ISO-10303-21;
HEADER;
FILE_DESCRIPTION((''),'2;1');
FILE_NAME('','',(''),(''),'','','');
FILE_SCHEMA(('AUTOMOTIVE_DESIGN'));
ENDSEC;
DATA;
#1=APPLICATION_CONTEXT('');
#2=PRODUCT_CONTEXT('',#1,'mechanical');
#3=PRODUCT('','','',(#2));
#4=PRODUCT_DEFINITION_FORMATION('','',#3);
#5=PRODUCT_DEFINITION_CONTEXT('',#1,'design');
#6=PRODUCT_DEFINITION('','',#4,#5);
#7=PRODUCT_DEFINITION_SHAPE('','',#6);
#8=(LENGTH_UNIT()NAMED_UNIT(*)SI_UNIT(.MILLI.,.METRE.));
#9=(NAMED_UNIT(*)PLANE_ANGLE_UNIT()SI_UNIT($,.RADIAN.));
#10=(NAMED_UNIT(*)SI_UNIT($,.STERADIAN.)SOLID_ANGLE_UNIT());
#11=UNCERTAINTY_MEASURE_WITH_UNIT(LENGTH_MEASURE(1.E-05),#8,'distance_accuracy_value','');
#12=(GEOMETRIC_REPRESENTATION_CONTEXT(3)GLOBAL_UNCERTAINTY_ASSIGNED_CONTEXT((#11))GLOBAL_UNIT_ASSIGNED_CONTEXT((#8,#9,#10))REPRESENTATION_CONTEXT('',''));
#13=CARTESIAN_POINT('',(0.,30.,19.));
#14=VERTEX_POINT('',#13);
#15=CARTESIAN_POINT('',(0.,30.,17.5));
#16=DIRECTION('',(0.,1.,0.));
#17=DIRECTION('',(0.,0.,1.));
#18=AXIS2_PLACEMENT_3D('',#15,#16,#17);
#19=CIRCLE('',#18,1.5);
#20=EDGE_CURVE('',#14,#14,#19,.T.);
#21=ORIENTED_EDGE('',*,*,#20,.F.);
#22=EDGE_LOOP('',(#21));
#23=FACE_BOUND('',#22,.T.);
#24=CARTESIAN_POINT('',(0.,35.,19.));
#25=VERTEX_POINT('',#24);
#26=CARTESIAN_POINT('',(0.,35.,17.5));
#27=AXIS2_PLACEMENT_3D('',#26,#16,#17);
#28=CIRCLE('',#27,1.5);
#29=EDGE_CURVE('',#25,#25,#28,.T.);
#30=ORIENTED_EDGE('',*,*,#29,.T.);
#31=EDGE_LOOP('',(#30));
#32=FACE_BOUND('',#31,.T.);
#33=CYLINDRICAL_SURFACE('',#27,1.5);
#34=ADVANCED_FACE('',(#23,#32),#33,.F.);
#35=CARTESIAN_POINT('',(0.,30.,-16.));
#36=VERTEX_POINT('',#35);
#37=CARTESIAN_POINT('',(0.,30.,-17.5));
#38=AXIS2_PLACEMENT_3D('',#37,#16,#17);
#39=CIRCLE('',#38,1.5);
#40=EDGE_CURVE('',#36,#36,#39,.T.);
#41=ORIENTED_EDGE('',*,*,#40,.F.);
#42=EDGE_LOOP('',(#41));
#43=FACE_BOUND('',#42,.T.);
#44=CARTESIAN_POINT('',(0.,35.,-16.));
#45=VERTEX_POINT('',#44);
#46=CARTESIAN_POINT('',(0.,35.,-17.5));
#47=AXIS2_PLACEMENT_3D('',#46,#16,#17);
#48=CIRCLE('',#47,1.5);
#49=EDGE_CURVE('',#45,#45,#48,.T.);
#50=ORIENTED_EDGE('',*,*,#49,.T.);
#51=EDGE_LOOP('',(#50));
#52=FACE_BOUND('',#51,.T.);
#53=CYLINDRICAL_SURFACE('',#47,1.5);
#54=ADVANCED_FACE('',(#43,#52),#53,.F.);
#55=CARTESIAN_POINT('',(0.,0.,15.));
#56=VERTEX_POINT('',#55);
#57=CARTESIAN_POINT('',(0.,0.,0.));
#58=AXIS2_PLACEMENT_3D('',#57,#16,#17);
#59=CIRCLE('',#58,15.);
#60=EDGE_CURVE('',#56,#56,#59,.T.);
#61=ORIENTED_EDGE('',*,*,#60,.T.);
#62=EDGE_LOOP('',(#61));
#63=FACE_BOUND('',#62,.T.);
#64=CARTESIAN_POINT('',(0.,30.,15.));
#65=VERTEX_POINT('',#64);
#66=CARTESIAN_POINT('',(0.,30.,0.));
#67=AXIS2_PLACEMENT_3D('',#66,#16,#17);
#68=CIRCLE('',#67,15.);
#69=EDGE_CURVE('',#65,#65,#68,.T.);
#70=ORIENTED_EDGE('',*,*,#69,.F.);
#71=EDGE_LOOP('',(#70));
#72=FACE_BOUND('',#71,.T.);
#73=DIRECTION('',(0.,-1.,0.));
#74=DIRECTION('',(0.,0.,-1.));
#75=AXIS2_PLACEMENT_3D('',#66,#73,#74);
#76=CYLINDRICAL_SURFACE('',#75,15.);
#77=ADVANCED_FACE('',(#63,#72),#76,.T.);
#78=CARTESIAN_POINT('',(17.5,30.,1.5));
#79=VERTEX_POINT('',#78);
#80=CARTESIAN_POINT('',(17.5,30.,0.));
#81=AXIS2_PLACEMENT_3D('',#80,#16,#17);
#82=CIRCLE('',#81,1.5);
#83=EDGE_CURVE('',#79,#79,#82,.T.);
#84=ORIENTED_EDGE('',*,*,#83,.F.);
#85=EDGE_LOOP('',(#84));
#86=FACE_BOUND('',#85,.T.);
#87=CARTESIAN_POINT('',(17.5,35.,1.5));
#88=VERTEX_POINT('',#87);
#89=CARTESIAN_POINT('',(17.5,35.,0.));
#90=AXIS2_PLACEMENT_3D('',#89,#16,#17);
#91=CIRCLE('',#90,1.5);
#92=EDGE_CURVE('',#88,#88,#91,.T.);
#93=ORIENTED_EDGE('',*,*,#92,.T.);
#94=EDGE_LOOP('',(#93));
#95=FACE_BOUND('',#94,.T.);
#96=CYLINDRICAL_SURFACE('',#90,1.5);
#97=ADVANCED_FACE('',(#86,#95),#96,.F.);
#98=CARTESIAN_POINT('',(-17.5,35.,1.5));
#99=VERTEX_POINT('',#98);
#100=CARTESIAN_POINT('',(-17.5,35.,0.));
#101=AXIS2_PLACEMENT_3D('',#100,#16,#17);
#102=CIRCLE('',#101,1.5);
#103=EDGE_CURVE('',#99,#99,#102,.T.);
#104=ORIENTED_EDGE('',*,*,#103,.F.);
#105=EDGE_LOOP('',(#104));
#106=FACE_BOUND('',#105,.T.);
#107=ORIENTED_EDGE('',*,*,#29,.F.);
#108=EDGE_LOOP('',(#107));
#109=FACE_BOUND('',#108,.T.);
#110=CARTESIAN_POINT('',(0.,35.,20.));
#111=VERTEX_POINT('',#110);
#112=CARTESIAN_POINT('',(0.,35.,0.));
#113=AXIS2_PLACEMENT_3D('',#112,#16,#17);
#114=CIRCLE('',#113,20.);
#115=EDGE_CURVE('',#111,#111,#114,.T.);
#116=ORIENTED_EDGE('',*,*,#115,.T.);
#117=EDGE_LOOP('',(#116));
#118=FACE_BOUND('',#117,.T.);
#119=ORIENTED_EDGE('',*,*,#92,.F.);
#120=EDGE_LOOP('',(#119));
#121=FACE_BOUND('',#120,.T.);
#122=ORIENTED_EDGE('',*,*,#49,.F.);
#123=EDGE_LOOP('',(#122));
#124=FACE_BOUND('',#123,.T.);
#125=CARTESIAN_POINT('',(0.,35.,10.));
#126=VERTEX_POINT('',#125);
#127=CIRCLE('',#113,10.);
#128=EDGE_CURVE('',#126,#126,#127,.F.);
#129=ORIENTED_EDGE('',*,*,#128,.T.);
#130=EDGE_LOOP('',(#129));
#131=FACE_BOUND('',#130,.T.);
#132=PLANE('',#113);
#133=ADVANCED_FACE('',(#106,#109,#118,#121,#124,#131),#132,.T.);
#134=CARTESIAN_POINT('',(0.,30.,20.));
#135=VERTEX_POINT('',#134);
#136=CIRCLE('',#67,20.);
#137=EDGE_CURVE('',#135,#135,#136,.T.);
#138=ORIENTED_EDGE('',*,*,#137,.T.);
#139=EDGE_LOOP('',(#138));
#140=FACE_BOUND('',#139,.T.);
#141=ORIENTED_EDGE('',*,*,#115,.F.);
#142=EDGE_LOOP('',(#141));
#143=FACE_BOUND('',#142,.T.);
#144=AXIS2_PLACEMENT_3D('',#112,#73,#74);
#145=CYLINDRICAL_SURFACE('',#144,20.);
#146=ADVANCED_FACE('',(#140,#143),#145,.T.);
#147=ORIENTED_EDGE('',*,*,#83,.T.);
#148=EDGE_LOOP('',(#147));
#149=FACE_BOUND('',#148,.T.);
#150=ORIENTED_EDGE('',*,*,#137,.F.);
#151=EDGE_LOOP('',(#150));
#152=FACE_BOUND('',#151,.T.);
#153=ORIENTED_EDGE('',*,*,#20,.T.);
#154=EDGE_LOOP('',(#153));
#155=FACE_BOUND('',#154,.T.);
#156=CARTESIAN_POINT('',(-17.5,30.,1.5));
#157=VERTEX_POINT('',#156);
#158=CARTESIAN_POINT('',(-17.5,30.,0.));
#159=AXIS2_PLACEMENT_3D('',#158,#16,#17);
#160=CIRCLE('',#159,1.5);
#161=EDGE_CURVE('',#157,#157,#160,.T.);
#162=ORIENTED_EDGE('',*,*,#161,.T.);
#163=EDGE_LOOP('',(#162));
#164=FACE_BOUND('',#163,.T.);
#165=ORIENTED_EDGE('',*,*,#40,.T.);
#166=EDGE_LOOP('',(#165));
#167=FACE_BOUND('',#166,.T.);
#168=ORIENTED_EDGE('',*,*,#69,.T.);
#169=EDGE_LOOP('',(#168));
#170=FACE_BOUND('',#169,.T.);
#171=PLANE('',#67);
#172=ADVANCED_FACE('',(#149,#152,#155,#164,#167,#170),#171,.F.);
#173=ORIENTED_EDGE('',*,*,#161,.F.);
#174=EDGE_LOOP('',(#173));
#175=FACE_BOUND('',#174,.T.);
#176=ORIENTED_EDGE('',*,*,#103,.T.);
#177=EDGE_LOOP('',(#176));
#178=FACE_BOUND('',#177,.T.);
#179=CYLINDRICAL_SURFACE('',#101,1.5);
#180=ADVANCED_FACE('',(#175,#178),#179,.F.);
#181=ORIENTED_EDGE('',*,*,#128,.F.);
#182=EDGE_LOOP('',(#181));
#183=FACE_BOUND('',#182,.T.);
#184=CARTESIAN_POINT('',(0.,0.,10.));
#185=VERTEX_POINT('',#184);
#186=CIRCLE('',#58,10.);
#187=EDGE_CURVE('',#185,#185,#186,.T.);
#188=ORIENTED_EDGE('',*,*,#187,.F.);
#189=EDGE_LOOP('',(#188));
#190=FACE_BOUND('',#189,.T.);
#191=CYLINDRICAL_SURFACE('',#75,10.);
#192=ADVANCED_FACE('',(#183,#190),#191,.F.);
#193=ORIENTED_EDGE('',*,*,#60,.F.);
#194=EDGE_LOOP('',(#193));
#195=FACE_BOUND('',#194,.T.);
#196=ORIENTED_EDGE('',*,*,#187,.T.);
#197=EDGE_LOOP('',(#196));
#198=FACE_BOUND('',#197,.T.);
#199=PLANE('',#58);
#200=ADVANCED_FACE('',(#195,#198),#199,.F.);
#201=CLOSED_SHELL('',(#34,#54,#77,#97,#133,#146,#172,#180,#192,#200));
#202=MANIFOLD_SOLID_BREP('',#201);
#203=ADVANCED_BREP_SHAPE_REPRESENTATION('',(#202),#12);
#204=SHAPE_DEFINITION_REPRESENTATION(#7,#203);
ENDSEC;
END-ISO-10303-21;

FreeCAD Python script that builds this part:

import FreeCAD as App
import Part
import Sketcher

doc = App.newDocument("Part")
body = doc.addObject("PartDesign::Body", "Body")

sketch1 = body.newObject("Sketcher::SketchObject", "Sketch")
sketch1.AttachmentSupport = (doc.getObject("XZ_Plane"), [""])
sketch1.MapMode = "FlatFace"
sketch1.addGeometry([
    Part.Circle(App.Vector(0, 0, 0), App.Vector(0, 0, 1), 15),
    Part.Circle(App.Vector(0, 0, 0), App.Vector(0, 0, 1), 10),
], False)
sketch1.addConstraint([
    Sketcher.Constraint("Coincident", 0, 3, -1, 1),
    Sketcher.Constraint("Coincident", 1, 3, -1, 1),
    Sketcher.Constraint("Diameter", 0, 30.0),
    Sketcher.Constraint("Diameter", 1, 20.0),
])
pad1 = body.newObject("PartDesign::Pad", "Pad")
pad1.Profile = sketch1
pad1.Length = 30
pad1.Reversed = True

sketch2 = body.newObject("Sketcher::SketchObject", "Sketch001")
sketch2.AttachmentSupport = (doc.getObject("XZ_Plane"), [""])
sketch2.MapMode = "FlatFace"
sketch2.AttachmentOffset = App.Placement(App.Vector(0, 0, -30), App.Rotation())
sketch2.addGeometry([
    Part.Circle(App.Vector(0, 0, 0), App.Vector(0, 0, 1), 20),
    Part.Circle(App.Vector(0, 0, 0), App.Vector(0, 0, 1), 10),
], False)
sketch2.addConstraint([
    Sketcher.Constraint("Coincident", 0, 3, -1, 1),
    Sketcher.Constraint("Coincident", 1, 3, -1, 1),
    Sketcher.Constraint("Diameter", 0, 40.0),
    Sketcher.Constraint("Diameter", 1, 20.0),
])
pad2 = body.newObject("PartDesign::Pad", "Pad001")
pad2.Profile = sketch2
pad2.Length = 5
pad2.Reversed = True

sketch3 = body.newObject("Sketcher::SketchObject", "Sketch002")
sketch3.AttachmentSupport = (doc.getObject("XZ_Plane"), [""])
sketch3.MapMode = "FlatFace"
sketch3.AttachmentOffset = App.Placement(App.Vector(0, 0, -35), App.Rotation())
sketch3.addGeometry([
    Part.Circle(App.Vector(0, -17.5, 0), App.Vector(0, 0, 1), 1.5),
    Part.Circle(App.Vector(17.5, 0, 0), App.Vector(0, 0, 1), 1.5),
    Part.Circle(App.Vector(0, 17.5, 0), App.Vector(0, 0, 1), 1.5),
    Part.Circle(App.Vector(-17.5, 0, 0), App.Vector(0, 0, 1), 1.5),
], False)
sketch3.addConstraint([
    Sketcher.Constraint("Equal", 0, 1),
    Sketcher.Constraint("Equal", 1, 2),
    Sketcher.Constraint("Equal", 2, 3),
    Sketcher.Constraint("Symmetric", 0, 3, 2, 3, -1, 1),
    Sketcher.Constraint("Symmetric", 1, 3, 3, 3, -1, 1),
    Sketcher.Constraint("PointOnObject", 0, 3, -2),
    Sketcher.Constraint("PointOnObject", 1, 3, -1),
    Sketcher.Constraint("Diameter", 0, 3.0),
    Sketcher.Constraint("DistanceY", 0, 3, 2, 3, 35.0),
    Sketcher.Constraint("DistanceX", 3, 3, 1, 3, 35.0),
])
doc.recompute()
hole = body.newObject("PartDesign::Hole", "Hole")
hole.Profile = sketch3
hole.ThreadType = "None"
hole.Diameter = 3
hole.DepthType = "Dimension"
hole.Depth = 7.5
hole.DrillPoint = "Angled"
hole.DrillPointAngle = 118
hole.Reversed = True

doc.recompute()
